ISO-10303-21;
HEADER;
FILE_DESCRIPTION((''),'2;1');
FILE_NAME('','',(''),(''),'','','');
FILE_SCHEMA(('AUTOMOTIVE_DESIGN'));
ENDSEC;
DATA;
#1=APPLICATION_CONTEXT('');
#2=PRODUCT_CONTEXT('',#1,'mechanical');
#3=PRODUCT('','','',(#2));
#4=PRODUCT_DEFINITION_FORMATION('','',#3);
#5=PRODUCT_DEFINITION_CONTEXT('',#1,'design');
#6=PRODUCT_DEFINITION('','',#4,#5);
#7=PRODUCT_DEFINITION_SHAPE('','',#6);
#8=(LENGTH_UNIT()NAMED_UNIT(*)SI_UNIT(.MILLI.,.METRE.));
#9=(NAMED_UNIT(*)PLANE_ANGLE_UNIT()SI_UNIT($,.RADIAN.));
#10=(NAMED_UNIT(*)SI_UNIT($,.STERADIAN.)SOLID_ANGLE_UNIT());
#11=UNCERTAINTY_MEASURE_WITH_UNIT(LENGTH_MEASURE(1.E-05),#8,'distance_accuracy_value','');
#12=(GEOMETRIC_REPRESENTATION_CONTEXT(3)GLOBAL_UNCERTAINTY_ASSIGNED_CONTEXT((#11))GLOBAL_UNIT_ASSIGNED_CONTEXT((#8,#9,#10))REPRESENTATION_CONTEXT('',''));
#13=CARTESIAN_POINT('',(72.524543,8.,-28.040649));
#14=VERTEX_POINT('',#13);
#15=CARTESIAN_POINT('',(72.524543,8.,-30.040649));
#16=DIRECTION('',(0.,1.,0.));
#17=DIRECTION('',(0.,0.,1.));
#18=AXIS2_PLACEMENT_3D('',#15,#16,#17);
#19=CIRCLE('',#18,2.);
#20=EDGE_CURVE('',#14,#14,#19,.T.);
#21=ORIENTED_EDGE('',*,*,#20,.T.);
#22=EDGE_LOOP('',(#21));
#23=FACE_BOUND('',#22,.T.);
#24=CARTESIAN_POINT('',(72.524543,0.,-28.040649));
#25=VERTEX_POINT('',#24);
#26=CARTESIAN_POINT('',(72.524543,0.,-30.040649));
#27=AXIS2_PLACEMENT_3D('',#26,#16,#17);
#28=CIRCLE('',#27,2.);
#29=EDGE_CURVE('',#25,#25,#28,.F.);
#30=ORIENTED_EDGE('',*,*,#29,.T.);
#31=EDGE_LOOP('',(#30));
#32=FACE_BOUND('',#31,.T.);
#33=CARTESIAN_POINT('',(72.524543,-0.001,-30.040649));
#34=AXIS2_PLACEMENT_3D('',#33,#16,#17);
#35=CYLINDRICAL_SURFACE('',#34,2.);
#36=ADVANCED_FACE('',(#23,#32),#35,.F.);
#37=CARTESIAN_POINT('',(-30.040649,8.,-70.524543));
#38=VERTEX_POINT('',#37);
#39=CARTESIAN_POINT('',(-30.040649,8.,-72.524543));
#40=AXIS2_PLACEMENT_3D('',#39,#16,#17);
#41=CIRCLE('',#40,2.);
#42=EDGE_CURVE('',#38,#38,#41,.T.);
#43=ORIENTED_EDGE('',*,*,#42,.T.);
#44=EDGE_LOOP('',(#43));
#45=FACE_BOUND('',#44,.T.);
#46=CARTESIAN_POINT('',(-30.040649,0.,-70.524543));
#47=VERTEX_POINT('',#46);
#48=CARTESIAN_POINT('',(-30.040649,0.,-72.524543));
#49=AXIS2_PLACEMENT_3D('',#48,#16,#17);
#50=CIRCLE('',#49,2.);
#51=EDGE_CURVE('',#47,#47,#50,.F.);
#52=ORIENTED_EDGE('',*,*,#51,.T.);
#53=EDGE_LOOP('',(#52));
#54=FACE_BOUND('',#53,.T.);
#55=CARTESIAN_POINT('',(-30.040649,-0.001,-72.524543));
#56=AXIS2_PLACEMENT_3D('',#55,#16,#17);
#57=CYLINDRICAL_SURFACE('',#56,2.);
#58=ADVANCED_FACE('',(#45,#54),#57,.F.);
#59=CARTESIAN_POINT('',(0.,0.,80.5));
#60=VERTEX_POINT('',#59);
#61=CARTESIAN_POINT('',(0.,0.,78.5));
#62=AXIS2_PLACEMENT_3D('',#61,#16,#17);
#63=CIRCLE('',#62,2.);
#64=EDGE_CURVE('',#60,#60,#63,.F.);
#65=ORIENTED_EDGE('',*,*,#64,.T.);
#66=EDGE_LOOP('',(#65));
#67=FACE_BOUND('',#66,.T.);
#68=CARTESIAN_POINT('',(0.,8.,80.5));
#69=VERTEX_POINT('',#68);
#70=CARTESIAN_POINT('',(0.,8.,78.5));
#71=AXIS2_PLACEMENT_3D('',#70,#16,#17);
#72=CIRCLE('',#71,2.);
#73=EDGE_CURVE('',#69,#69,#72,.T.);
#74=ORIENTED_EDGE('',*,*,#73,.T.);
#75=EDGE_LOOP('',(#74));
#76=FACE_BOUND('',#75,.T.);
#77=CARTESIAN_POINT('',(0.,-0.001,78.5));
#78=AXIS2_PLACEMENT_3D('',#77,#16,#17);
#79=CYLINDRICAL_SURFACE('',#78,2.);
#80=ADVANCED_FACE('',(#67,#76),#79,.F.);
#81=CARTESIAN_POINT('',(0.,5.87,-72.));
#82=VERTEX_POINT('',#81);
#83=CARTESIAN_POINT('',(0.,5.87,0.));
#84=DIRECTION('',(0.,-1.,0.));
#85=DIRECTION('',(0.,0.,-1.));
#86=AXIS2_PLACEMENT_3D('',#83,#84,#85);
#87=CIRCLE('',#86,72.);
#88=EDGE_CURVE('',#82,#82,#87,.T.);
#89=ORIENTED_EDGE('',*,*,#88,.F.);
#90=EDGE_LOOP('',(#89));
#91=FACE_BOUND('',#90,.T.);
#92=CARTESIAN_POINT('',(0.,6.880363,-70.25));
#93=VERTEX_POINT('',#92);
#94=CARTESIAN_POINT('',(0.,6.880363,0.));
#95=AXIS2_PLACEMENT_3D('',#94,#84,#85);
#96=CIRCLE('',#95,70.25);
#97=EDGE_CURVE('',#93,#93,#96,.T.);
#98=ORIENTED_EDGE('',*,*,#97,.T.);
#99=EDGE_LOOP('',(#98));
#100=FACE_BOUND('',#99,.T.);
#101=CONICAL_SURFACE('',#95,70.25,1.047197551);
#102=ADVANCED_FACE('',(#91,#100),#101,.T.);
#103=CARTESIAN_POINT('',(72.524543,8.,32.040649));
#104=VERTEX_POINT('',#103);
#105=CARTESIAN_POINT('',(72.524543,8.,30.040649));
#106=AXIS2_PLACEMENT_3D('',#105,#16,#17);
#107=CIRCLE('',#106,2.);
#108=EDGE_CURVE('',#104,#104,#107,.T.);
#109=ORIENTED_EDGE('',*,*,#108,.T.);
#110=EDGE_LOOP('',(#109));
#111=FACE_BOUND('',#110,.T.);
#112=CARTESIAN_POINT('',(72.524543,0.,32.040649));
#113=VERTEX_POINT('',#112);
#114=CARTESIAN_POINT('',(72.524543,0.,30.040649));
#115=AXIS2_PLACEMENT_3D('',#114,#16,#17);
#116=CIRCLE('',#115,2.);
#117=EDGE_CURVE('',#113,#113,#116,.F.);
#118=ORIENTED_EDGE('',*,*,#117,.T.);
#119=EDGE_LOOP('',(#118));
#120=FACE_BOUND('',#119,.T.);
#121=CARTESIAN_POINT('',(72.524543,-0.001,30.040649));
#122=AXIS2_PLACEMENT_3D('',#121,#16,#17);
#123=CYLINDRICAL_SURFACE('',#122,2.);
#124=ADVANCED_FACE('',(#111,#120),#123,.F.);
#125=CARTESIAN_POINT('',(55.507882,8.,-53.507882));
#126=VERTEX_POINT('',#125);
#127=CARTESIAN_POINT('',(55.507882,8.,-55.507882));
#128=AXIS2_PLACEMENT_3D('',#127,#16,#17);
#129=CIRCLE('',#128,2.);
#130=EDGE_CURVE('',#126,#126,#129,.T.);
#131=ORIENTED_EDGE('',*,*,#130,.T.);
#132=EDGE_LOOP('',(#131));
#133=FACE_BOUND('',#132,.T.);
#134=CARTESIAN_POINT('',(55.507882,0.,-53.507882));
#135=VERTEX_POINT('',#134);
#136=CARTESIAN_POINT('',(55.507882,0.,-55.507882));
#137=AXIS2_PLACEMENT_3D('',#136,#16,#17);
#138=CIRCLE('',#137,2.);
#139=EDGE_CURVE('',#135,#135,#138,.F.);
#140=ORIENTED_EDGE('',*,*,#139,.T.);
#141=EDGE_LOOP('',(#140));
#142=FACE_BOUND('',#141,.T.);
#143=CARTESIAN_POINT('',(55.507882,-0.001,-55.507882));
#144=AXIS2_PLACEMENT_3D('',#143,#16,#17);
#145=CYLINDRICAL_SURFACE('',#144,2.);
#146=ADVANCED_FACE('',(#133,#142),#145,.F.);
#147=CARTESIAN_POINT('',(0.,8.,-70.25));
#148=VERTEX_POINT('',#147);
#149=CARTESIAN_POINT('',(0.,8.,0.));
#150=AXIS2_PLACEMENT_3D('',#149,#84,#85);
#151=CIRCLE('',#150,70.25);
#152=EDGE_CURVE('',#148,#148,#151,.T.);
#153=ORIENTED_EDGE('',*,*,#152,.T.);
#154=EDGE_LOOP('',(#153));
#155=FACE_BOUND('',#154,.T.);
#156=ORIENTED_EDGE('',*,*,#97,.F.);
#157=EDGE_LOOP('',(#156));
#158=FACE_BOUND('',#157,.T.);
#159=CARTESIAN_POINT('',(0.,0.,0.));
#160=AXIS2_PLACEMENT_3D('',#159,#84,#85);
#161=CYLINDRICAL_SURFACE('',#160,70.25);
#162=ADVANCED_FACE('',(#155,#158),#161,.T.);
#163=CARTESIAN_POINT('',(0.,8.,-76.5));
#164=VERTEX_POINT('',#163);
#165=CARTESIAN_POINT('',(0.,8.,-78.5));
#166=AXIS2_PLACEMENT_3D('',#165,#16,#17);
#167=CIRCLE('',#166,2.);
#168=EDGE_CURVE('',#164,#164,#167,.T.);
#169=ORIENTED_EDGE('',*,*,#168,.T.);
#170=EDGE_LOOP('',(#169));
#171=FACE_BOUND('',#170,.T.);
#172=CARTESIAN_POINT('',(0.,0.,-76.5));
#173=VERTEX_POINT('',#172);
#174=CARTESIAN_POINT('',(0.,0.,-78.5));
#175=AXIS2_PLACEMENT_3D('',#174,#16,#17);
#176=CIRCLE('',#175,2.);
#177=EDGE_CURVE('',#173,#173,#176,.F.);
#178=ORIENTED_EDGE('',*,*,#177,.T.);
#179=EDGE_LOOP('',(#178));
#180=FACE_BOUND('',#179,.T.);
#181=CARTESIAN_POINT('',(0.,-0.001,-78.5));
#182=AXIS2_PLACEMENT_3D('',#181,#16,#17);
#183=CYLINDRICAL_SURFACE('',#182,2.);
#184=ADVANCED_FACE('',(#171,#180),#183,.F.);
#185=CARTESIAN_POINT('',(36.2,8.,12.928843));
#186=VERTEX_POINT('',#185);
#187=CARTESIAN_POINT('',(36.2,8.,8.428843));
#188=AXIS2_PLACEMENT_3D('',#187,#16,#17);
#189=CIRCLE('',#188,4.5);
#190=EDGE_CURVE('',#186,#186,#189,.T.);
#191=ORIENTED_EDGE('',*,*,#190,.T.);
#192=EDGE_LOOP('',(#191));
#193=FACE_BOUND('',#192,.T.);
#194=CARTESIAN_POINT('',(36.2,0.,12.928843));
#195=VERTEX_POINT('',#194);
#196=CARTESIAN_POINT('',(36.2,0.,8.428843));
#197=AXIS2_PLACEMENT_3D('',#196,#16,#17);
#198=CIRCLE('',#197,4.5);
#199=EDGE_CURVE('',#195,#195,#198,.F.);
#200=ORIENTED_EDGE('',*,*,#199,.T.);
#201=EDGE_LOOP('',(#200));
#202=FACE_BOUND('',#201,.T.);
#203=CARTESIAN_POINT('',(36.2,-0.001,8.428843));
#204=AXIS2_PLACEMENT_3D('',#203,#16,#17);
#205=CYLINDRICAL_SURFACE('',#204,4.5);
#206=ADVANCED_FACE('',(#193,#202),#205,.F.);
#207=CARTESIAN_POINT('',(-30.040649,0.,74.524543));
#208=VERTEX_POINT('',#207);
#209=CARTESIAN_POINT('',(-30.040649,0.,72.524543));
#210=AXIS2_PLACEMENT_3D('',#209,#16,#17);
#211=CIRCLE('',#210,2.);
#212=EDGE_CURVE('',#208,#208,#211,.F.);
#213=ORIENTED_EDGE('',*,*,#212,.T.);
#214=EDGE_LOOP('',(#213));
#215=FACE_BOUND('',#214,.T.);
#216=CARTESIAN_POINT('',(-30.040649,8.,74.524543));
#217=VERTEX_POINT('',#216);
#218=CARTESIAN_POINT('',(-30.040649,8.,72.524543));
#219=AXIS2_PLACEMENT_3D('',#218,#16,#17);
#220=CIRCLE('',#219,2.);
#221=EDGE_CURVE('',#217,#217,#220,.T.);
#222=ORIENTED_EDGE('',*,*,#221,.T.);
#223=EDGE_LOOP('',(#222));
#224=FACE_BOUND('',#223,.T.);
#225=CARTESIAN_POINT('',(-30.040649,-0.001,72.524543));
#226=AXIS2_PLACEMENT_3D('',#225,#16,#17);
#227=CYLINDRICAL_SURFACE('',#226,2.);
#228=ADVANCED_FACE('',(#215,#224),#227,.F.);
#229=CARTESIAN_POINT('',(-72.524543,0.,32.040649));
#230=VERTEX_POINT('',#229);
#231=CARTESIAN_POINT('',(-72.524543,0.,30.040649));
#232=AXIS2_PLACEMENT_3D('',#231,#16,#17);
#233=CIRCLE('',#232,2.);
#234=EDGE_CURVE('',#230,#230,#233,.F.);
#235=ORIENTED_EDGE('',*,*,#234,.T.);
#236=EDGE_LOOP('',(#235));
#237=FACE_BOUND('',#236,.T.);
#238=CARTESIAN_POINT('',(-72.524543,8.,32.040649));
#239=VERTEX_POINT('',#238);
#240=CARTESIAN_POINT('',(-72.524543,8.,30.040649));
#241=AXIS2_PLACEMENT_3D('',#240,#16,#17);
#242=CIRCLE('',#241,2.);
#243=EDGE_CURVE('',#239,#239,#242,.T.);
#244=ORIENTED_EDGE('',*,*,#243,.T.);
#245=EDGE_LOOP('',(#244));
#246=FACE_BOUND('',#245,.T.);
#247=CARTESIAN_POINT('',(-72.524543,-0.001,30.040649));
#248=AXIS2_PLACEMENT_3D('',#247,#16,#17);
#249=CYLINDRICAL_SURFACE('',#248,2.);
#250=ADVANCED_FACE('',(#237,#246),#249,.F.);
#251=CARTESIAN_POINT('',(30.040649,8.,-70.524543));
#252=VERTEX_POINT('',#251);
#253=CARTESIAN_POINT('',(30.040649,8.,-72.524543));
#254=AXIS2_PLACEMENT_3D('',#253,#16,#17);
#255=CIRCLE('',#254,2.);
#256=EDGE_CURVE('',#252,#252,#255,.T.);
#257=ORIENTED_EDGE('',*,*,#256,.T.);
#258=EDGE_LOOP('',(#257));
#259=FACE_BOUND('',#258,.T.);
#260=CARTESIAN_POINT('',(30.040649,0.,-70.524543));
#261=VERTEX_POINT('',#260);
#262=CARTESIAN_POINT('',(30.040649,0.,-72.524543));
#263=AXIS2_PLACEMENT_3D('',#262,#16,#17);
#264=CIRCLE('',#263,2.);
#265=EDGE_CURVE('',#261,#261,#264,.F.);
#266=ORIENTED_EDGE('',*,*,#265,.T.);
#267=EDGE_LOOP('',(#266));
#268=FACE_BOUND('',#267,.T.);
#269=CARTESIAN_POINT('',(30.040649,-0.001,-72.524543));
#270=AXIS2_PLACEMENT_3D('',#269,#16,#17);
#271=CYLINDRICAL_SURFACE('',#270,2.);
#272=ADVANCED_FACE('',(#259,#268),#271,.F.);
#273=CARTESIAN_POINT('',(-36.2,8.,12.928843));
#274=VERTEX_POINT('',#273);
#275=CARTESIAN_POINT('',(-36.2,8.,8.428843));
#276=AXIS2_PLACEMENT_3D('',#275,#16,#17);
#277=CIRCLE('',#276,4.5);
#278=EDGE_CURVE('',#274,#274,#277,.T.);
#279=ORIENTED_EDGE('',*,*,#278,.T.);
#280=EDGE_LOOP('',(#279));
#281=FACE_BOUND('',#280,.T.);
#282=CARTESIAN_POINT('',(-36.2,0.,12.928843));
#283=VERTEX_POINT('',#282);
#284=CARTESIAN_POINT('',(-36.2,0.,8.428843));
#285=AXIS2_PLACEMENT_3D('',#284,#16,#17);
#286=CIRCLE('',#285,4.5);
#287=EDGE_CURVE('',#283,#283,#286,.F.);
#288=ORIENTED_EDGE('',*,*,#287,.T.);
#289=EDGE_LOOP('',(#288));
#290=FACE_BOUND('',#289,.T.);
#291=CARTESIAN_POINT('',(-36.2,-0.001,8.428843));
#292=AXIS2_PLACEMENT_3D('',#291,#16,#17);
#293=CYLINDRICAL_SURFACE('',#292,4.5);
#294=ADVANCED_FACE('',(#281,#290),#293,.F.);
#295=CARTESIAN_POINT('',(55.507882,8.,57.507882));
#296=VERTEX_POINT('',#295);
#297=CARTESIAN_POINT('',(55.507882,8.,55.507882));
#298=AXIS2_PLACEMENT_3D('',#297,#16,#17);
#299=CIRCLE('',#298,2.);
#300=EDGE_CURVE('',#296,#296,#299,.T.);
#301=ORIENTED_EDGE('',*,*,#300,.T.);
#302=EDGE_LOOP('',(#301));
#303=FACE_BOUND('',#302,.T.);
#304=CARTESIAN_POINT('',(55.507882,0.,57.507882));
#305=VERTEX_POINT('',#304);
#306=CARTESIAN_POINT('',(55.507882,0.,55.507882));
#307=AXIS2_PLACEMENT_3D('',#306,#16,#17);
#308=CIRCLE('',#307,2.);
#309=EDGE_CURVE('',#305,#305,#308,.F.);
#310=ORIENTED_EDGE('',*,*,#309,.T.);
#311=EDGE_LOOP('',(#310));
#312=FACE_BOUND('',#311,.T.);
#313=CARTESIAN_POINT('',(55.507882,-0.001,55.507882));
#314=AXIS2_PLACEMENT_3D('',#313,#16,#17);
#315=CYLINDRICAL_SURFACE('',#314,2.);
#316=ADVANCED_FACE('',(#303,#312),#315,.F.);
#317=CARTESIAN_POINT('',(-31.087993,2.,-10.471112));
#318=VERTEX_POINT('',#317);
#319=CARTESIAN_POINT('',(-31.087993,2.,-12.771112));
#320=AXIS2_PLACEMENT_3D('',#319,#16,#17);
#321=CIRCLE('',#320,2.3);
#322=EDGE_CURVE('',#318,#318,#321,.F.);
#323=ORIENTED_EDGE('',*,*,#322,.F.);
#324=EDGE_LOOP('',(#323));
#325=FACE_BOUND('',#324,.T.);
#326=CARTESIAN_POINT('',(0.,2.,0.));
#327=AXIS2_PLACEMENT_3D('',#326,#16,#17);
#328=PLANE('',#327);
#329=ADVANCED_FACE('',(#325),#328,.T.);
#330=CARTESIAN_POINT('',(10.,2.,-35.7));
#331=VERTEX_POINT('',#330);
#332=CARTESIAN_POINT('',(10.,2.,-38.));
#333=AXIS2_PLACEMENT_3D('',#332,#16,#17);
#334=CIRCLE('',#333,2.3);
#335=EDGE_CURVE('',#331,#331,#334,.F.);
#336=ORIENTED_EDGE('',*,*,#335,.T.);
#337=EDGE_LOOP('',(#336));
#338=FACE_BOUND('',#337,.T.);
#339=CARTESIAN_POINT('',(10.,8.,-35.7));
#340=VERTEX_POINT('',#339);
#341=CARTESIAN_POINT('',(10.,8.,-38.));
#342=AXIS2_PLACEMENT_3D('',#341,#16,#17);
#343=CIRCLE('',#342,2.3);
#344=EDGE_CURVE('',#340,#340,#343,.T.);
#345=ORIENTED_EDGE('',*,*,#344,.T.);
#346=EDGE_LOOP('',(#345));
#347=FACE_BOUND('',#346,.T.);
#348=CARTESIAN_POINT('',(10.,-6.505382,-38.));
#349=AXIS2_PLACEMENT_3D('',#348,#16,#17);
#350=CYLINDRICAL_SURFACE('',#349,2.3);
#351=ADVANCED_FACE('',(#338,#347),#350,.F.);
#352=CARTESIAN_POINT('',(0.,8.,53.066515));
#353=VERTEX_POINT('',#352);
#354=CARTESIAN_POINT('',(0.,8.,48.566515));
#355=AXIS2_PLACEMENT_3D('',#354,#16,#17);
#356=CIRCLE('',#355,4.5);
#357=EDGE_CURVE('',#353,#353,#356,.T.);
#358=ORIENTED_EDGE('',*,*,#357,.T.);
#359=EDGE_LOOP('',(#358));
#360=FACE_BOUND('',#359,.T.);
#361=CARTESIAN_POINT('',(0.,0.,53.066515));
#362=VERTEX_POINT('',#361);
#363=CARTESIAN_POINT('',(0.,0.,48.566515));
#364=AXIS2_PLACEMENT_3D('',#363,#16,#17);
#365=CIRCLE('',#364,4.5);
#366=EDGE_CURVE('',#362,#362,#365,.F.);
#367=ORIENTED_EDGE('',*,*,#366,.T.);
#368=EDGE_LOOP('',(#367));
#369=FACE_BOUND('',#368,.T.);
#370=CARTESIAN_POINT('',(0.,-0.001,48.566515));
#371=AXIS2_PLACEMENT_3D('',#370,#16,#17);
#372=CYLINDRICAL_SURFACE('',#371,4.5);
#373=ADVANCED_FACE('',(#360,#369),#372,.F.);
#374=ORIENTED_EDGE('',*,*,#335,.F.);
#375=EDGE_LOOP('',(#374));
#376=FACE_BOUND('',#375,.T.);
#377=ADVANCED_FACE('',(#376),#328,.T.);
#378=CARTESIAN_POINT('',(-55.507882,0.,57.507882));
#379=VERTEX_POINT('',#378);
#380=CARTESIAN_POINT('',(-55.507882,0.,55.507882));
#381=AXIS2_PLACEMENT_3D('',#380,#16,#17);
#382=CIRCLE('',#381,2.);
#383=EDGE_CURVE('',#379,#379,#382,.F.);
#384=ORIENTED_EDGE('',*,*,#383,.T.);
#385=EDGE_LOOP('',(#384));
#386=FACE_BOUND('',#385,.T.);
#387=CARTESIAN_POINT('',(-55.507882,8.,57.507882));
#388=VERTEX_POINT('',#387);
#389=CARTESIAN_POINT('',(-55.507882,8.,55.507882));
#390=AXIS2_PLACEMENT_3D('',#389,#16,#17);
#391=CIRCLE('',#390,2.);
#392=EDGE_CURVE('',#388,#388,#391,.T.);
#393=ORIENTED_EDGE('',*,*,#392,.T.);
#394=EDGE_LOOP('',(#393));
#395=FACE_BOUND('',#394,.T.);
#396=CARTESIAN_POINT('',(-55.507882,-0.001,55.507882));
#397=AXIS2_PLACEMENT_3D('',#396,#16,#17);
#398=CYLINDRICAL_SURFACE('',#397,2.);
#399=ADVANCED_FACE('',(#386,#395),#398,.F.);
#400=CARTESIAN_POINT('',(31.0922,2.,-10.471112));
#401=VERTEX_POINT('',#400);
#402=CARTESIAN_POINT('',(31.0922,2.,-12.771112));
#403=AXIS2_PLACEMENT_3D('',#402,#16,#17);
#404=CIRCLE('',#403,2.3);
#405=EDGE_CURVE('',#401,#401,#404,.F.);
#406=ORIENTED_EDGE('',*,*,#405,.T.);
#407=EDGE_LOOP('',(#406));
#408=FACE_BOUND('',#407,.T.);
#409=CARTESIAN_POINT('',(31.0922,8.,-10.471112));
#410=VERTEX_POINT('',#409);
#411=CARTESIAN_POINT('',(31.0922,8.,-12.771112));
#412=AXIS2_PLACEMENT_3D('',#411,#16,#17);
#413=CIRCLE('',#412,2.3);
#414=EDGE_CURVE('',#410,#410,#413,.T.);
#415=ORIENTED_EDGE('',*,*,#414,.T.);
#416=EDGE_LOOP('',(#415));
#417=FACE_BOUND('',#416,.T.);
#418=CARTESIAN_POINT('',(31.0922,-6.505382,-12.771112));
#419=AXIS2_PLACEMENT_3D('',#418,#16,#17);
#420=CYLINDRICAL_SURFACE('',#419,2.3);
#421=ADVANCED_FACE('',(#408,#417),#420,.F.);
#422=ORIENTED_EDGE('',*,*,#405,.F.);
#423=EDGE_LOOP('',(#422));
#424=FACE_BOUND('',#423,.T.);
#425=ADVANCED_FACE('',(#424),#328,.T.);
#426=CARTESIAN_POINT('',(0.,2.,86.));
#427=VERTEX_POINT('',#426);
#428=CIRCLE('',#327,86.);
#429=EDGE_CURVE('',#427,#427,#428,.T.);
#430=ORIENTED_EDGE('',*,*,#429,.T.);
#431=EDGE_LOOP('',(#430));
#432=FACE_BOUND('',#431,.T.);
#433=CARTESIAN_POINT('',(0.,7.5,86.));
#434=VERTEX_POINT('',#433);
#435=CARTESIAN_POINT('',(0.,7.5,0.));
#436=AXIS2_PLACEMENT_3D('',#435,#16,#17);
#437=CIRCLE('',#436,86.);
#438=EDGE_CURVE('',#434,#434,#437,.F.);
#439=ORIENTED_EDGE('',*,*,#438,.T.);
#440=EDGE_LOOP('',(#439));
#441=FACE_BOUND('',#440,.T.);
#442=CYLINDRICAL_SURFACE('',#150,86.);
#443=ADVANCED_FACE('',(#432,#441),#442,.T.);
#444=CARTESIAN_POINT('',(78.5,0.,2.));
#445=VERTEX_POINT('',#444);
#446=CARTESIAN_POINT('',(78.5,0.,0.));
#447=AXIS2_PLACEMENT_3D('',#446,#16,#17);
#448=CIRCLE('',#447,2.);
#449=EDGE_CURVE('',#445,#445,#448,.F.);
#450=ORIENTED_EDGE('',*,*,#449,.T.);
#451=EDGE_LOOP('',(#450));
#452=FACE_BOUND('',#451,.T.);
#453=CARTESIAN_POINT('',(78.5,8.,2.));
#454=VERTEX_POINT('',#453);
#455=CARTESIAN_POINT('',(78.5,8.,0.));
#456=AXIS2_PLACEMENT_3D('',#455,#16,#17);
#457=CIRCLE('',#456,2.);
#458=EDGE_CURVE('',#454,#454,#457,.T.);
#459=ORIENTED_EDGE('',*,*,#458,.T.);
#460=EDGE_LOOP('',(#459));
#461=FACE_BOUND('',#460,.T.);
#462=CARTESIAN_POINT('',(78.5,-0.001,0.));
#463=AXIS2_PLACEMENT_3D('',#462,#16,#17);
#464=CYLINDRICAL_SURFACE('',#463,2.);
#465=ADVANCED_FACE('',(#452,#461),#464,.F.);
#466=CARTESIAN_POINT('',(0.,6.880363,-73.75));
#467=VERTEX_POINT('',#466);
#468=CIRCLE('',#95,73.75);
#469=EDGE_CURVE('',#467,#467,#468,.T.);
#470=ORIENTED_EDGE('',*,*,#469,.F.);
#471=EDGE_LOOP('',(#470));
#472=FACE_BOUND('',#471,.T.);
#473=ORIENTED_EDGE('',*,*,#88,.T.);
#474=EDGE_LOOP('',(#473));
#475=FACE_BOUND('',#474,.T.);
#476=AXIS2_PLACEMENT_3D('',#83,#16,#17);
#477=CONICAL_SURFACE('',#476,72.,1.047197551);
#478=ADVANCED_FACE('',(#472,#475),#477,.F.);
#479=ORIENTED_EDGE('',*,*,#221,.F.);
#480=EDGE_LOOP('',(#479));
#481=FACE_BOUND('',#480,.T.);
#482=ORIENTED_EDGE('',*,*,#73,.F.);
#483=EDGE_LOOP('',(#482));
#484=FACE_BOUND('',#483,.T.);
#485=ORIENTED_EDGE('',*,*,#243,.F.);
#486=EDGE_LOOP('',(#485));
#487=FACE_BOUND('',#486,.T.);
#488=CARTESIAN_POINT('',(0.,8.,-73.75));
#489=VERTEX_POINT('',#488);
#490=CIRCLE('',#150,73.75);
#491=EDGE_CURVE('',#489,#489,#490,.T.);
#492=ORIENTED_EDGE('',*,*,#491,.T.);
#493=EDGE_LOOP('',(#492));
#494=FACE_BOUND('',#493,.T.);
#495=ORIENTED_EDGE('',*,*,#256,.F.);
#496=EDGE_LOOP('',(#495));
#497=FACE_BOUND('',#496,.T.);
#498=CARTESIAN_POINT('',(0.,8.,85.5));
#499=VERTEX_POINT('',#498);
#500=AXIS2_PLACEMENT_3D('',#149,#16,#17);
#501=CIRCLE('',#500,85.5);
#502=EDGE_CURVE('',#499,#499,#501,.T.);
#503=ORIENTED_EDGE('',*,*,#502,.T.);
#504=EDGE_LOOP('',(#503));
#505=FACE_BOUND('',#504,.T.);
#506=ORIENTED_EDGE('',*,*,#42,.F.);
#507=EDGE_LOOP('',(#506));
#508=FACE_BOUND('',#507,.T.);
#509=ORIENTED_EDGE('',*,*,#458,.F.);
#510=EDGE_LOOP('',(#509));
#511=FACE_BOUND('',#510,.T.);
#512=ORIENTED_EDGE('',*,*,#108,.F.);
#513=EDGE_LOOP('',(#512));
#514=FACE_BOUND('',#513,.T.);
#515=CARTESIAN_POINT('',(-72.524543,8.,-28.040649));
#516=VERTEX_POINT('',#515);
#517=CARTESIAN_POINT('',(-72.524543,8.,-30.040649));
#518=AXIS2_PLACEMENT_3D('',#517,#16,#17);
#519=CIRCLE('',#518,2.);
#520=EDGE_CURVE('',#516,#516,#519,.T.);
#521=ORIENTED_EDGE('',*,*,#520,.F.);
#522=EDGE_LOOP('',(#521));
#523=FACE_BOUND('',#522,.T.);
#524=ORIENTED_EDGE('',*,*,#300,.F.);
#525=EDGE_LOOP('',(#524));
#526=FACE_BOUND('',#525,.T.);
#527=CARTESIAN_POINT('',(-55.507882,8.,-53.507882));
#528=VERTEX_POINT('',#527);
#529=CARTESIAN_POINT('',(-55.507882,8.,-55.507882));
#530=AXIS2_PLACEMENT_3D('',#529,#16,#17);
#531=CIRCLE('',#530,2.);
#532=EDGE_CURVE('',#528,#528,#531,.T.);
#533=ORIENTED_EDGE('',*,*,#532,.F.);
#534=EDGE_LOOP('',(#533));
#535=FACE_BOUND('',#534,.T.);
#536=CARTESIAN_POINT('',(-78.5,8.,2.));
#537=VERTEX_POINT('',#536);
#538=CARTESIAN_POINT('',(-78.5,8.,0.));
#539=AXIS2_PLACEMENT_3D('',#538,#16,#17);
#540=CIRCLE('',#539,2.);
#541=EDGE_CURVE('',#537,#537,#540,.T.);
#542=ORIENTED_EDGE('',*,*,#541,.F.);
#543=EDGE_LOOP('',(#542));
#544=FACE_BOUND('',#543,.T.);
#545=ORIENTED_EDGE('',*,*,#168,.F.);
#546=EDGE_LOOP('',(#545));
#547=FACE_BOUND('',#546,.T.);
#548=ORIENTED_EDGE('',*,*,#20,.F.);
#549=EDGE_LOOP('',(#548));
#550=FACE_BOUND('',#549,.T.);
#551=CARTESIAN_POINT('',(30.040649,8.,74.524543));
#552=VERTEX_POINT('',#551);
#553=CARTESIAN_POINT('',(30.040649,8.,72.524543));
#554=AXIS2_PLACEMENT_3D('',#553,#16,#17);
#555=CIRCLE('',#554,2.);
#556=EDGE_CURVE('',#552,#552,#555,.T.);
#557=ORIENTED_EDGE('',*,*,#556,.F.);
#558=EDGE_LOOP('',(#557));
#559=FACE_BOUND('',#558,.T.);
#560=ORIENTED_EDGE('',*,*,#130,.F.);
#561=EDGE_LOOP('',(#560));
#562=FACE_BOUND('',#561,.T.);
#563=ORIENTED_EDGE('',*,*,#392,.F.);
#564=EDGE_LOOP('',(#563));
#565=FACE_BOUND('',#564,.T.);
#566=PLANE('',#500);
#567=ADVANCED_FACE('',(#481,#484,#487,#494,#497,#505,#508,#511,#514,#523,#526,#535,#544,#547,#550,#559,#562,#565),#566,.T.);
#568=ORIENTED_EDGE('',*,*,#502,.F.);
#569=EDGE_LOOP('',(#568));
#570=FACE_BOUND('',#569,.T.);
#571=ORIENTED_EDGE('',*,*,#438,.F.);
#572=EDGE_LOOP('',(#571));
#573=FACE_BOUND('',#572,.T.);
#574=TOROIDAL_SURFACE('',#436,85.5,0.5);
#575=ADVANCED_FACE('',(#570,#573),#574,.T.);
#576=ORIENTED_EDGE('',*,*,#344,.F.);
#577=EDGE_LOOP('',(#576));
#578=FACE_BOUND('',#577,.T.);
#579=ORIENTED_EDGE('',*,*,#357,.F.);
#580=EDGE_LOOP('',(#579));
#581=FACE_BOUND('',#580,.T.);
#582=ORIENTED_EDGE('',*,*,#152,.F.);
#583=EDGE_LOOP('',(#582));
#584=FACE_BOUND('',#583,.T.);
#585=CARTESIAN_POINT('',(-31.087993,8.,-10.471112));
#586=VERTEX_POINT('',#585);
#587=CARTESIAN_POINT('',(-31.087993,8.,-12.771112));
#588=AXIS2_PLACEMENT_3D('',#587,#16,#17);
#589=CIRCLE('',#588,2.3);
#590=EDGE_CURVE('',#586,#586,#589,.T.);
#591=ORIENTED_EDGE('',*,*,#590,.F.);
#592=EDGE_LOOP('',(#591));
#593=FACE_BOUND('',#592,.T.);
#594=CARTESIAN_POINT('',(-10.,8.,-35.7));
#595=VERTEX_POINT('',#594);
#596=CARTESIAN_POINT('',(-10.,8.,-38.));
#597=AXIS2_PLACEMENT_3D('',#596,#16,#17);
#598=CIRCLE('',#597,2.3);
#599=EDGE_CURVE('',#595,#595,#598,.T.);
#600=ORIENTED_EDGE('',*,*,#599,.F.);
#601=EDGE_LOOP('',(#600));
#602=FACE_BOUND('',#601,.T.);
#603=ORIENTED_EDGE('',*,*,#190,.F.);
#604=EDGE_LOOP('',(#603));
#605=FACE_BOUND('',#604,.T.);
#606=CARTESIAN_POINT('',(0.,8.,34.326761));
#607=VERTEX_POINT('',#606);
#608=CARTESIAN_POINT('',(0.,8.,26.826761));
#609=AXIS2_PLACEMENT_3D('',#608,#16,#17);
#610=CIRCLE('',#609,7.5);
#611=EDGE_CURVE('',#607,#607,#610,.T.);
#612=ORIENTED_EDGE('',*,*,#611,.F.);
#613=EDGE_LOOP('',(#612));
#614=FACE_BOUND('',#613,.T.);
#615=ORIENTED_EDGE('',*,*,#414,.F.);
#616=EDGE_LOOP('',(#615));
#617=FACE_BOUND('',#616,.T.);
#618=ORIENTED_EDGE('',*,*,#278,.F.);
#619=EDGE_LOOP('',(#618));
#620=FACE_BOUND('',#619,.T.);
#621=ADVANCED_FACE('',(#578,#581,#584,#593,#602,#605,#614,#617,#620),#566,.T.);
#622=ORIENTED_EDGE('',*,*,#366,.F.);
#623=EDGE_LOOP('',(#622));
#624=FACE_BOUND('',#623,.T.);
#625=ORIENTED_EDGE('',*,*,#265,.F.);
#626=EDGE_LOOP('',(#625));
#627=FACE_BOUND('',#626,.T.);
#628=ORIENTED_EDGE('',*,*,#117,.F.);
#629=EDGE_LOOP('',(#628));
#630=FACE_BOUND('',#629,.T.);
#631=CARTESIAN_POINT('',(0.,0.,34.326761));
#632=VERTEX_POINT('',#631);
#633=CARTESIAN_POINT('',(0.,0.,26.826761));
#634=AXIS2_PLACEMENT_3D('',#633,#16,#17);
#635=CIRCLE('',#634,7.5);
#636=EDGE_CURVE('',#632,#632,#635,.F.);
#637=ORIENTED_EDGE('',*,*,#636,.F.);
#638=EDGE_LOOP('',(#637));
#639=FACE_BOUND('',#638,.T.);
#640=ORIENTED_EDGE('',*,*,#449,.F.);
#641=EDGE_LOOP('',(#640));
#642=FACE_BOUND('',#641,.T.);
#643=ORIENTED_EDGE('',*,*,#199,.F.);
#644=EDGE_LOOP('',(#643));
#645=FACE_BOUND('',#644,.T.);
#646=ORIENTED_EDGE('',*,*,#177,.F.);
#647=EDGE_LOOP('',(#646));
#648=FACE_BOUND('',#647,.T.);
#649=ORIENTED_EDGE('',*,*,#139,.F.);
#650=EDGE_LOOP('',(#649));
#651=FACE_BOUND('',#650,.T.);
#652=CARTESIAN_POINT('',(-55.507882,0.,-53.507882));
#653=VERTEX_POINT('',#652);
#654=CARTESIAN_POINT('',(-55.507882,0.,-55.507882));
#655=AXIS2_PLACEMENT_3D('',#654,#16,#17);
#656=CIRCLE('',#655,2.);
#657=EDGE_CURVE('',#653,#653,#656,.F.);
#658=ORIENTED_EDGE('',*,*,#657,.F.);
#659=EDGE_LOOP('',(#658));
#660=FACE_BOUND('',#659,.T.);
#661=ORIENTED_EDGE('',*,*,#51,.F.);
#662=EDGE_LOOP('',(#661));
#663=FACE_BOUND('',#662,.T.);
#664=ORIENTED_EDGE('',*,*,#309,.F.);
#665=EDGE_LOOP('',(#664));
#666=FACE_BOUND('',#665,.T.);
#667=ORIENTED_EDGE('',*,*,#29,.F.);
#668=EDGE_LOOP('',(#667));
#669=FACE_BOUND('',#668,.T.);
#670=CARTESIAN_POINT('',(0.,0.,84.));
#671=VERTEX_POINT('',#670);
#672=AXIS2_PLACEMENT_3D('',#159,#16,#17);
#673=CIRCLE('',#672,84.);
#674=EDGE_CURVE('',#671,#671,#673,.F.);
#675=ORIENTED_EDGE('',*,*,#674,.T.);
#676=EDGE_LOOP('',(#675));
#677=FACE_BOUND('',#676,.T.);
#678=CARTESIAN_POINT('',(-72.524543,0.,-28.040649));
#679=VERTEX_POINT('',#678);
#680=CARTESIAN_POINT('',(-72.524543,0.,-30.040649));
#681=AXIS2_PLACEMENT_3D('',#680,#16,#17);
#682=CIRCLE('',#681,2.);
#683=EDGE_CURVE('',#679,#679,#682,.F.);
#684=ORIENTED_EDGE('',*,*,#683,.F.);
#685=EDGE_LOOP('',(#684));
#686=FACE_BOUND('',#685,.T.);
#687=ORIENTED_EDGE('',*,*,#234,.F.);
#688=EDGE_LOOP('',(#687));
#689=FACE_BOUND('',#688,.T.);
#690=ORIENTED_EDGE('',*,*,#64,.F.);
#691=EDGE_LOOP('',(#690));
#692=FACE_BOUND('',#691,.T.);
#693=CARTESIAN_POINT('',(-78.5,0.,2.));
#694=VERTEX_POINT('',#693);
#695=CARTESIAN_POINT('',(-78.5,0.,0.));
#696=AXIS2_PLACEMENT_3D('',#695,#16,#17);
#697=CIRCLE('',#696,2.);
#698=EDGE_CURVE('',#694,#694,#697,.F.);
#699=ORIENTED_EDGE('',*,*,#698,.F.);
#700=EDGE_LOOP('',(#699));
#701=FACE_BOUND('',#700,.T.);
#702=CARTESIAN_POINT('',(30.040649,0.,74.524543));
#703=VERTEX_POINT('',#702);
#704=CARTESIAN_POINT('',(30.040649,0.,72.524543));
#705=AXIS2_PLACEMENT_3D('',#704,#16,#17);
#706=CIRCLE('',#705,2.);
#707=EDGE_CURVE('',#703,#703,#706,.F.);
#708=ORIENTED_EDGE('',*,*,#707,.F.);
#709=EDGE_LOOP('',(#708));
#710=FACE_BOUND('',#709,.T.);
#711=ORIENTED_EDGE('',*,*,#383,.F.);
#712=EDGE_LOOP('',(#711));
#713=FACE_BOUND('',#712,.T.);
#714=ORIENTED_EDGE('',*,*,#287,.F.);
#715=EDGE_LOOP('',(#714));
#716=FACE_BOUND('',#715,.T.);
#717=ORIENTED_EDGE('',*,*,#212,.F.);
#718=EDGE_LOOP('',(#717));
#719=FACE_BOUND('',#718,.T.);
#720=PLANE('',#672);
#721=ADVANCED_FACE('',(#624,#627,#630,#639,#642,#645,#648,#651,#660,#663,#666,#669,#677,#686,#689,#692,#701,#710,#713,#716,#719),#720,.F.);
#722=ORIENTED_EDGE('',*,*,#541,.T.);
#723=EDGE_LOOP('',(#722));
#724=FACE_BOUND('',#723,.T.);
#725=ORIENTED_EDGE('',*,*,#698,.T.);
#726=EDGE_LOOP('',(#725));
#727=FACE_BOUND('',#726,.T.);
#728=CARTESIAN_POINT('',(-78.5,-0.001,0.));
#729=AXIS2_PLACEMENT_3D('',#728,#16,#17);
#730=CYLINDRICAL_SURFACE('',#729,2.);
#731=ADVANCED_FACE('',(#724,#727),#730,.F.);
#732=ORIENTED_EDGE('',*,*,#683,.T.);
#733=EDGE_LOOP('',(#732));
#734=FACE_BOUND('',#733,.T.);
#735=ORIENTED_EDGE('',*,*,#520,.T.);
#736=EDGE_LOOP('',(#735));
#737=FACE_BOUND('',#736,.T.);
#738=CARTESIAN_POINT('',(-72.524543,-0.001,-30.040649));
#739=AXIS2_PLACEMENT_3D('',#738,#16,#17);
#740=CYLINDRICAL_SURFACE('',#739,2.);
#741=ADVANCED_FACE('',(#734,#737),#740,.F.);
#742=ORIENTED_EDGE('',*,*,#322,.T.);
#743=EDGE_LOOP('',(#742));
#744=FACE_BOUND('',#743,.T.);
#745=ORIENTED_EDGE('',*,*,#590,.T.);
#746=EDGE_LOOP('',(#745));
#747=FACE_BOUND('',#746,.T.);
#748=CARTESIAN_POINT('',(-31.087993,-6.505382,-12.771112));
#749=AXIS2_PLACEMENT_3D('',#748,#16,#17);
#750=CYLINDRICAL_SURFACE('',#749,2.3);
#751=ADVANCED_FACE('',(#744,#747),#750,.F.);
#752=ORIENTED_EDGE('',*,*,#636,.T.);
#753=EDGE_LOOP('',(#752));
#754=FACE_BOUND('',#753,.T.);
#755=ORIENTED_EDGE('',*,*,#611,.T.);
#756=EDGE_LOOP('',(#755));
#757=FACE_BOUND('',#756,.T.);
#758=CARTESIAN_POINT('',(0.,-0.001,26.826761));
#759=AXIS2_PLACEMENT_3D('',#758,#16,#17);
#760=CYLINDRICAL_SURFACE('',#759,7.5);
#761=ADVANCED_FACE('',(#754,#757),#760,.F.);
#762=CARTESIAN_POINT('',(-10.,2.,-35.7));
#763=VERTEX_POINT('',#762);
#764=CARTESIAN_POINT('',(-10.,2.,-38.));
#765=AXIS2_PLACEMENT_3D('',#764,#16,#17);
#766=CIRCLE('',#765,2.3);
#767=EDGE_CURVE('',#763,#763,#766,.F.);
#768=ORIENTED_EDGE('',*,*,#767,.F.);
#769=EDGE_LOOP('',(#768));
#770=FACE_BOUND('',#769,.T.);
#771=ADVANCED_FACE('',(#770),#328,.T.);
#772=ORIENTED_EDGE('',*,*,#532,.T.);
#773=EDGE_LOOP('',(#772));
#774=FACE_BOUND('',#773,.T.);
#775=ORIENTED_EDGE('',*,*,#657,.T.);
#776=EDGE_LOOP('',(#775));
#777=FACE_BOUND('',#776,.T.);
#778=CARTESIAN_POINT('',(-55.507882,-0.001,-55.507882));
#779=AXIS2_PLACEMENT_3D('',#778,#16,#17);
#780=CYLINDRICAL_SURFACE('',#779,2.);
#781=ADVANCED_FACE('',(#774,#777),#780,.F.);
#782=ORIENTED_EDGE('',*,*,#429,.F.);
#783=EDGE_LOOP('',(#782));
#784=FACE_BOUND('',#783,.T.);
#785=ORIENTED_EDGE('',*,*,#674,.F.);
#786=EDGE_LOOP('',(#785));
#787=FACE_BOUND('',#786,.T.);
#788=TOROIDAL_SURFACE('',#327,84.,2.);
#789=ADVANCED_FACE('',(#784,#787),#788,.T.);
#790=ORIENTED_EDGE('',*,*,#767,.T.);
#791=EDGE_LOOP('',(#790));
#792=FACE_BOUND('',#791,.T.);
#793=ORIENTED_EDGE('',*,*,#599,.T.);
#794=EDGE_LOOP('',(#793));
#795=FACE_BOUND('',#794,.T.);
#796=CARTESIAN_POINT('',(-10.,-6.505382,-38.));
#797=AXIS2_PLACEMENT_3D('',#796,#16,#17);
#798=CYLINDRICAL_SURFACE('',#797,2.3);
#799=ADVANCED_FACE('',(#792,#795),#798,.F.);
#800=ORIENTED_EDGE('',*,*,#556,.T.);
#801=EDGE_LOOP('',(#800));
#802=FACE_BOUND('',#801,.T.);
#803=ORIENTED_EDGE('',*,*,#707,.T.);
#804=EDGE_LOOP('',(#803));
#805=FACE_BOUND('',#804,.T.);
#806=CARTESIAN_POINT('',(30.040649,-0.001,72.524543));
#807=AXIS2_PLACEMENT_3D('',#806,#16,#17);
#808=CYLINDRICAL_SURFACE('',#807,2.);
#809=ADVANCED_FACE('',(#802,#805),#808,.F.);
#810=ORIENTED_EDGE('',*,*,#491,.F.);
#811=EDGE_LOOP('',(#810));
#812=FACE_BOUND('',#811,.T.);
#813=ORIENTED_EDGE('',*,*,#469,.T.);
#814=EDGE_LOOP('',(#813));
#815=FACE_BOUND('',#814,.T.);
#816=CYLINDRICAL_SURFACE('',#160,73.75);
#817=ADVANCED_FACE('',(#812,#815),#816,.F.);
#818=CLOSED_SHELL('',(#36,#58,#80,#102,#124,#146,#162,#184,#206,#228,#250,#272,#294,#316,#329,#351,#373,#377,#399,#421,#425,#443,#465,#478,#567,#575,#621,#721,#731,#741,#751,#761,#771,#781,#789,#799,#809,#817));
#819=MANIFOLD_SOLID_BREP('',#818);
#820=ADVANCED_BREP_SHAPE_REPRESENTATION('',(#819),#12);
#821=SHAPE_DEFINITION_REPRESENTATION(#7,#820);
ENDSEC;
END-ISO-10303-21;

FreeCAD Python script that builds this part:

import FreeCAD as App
import Part
import Sketcher
from FreeCAD import Vector
Q = App.Units.Quantity


def edges_at(feature, points):
    """Names of the edges that pass closest to the given points."""
    edges = feature.Shape.Edges
    near = lambda p: min(range(len(edges)), key=lambda i: edges[i].distToShape(Part.Vertex(*p))[0])
    return sorted({f"Edge{near(p) + 1}" for p in points})

doc = App.newDocument("Part")
body = doc.addObject("PartDesign::Body", "Body")

sketch1 = body.newObject("Sketcher::SketchObject", "Sketch")
sketch1.AttachmentSupport = (doc.getObject("XZ_Plane"), [""])
sketch1.MapMode = "FlatFace"
sketch1.addGeometry(Part.Circle(Vector(0, 0, 0), Vector(0, 0, 1), 86), False)
sketch1.addConstraint(Sketcher.Constraint("Coincident", 0, 3, -1, 1))
sketch1.addConstraint(Sketcher.Constraint("Diameter", 0, 172.0))
pad1 = body.newObject("PartDesign::Pad", "Pad")
pad1.Profile = sketch1
pad1.Length = 8
pad1.Reversed = True

sketch2 = body.newObject("Sketcher::SketchObject", "Sketch001")
sketch2.AttachmentSupport = (doc.getObject("XZ_Plane"), [""])
sketch2.MapMode = "FlatFace"
sketch2.AttachmentOffset = App.Placement(Vector(0, 0, -8), App.Rotation())
sketch2.addGeometry(Part.Circle(Vector(0, -78.5, 0), Vector(0, 0, 1), 2), False)
sketch2.addConstraint(Sketcher.Constraint("PointOnObject", 0, 3, -2))
sketch2.addConstraint(Sketcher.Constraint("Diameter", 0, 4.0))
sketch2.addConstraint(Sketcher.Constraint("DistanceY", 0, 3, -1, 1, 78.5))
pocket1 = body.newObject("PartDesign::Pocket", "Pocket")
pocket1.Profile = sketch2
pocket1.Type = "UpToFirst"
pocket1.Reversed = True

sketch3 = body.newObject("Sketcher::SketchObject", "Sketch002")
sketch3.AttachmentSupport = (doc.getObject("XZ_Plane"), [""])
sketch3.MapMode = "FlatFace"
sketch3.AttachmentOffset = App.Placement(Vector(0, 0, -8), App.Rotation())
sketch3.addGeometry(Part.Circle(Vector(30, -72.5, 0), Vector(0, 0, 1), 2), False)
sketch3.addConstraint(Sketcher.Constraint("Diameter", 0, 4.0))
sketch3.addConstraint(Sketcher.Constraint("DistanceX", -1, 1, 0, 3, 30.040649))
sketch3.addConstraint(Sketcher.Constraint("DistanceY", 0, 3, -1, 1, 72.524543))
pocket2 = body.newObject("PartDesign::Pocket", "Pocket001")
pocket2.Profile = sketch3
pocket2.Type = "UpToFirst"
pocket2.Reversed = True

sketch4 = body.newObject("Sketcher::SketchObject", "Sketch003")
sketch4.AttachmentSupport = (doc.getObject("XZ_Plane"), [""])
sketch4.MapMode = "FlatFace"
sketch4.AttachmentOffset = App.Placement(Vector(0, 0, -8), App.Rotation())
sketch4.addGeometry(Part.Circle(Vector(55.5, -55.5, 0), Vector(0, 0, 1), 2), False)
sketch4.addConstraint(Sketcher.Constraint("Diameter", 0, 4.0))
sketch4.addConstraint(Sketcher.Constraint("DistanceX", -1, 1, 0, 3, 55.507882))
sketch4.addConstraint(Sketcher.Constraint("DistanceY", 0, 3, -1, 1, 55.507882))
pocket3 = body.newObject("PartDesign::Pocket", "Pocket002")
pocket3.Profile = sketch4
pocket3.Type = "UpToFirst"
pocket3.Reversed = True

sketch5 = body.newObject("Sketcher::SketchObject", "Sketch004")
sketch5.AttachmentSupport = (doc.getObject("XZ_Plane"), [""])
sketch5.MapMode = "FlatFace"
sketch5.AttachmentOffset = App.Placement(Vector(0, 0, -8), App.Rotation())
sketch5.addGeometry(Part.Circle(Vector(72.5, -30, 0), Vector(0, 0, 1), 2), False)
sketch5.addConstraint(Sketcher.Constraint("Diameter", 0, 4.0))
sketch5.addConstraint(Sketcher.Constraint("DistanceY", 0, 3, -1, 1, 30.040649))
sketch5.addConstraint(Sketcher.Constraint("DistanceX", -1, 1, 0, 3, 72.524543))
pocket4 = body.newObject("PartDesign::Pocket", "Pocket003")
pocket4.Profile = sketch5
pocket4.Type = "UpToFirst"
pocket4.Reversed = True

sketch6 = body.newObject("Sketcher::SketchObject", "Sketch005")
sketch6.AttachmentSupport = (doc.getObject("XZ_Plane"), [""])
sketch6.MapMode = "FlatFace"
sketch6.AttachmentOffset = App.Placement(Vector(0, 0, -8), App.Rotation())
sketch6.addGeometry(Part.Circle(Vector(78.5, 0, 0), Vector(0, 0, 1), 2), False)
sketch6.addConstraint(Sketcher.Constraint("PointOnObject", 0, 3, -1))
sketch6.addConstraint(Sketcher.Constraint("Diameter", 0, 4.0))
sketch6.addConstraint(Sketcher.Constraint("DistanceX", -1, 1, 0, 3, 78.5))
pocket5 = body.newObject("PartDesign::Pocket", "Pocket004")
pocket5.Profile = sketch6
pocket5.Type = "UpToFirst"
pocket5.Reversed = True

sketch7 = body.newObject("Sketcher::SketchObject", "Sketch006")
sketch7.AttachmentSupport = (doc.getObject("XZ_Plane"), [""])
sketch7.MapMode = "FlatFace"
sketch7.AttachmentOffset = App.Placement(Vector(0, 0, -8), App.Rotation())
sketch7.addGeometry(Part.Circle(Vector(72.5, 30, 0), Vector(0, 0, 1), 2), False)
sketch7.addConstraint(Sketcher.Constraint("Diameter", 0, 4.0))
sketch7.addConstraint(Sketcher.Constraint("DistanceY", -1, 1, 0, 3, 30.040649))
sketch7.addConstraint(Sketcher.Constraint("DistanceX", -1, 1, 0, 3, 72.524543))
pocket6 = body.newObject("PartDesign::Pocket", "Pocket005")
pocket6.Profile = sketch7
pocket6.Type = "UpToFirst"
pocket6.Reversed = True

sketch8 = body.newObject("Sketcher::SketchObject", "Sketch007")
sketch8.AttachmentSupport = (doc.getObject("XZ_Plane"), [""])
sketch8.MapMode = "FlatFace"
sketch8.AttachmentOffset = App.Placement(Vector(0, 0, -8), App.Rotation())
sketch8.addGeometry(Part.Circle(Vector(55.5, 55.5, 0), Vector(0, 0, 1), 2), False)
sketch8.addConstraint(Sketcher.Constraint("Diameter", 0, 4.0))
sketch8.addConstraint(Sketcher.Constraint("DistanceX", -1, 1, 0, 3, 55.507882))
sketch8.addConstraint(Sketcher.Constraint("DistanceY", -1, 1, 0, 3, 55.507882))
pocket7 = body.newObject("PartDesign::Pocket", "Pocket006")
pocket7.Profile = sketch8
pocket7.Type = "UpToFirst"
pocket7.Reversed = True

sketch9 = body.newObject("Sketcher::SketchObject", "Sketch008")
sketch9.AttachmentSupport = (doc.getObject("XZ_Plane"), [""])
sketch9.MapMode = "FlatFace"
sketch9.AttachmentOffset = App.Placement(Vector(0, 0, -8), App.Rotation())
sketch9.addGeometry(Part.Circle(Vector(30, 72.5, 0), Vector(0, 0, 1), 2), False)
sketch9.addConstraint(Sketcher.Constraint("Diameter", 0, 4.0))
sketch9.addConstraint(Sketcher.Constraint("DistanceX", -1, 1, 0, 3, 30.040649))
sketch9.addConstraint(Sketcher.Constraint("DistanceY", -1, 1, 0, 3, 72.524543))
pocket8 = body.newObject("PartDesign::Pocket", "Pocket007")
pocket8.Profile = sketch9
pocket8.Type = "UpToFirst"
pocket8.Reversed = True

sketch10 = body.newObject("Sketcher::SketchObject", "Sketch009")
sketch10.AttachmentSupport = (doc.getObject("XZ_Plane"), [""])
sketch10.MapMode = "FlatFace"
sketch10.AttachmentOffset = App.Placement(Vector(0, 0, -8), App.Rotation())
sketch10.addGeometry(Part.Circle(Vector(0, 78.5, 0), Vector(0, 0, 1), 2), False)
sketch10.addConstraint(Sketcher.Constraint("PointOnObject", 0, 3, -2))
sketch10.addConstraint(Sketcher.Constraint("Diameter", 0, 4.0))
sketch10.addConstraint(Sketcher.Constraint("DistanceY", -1, 1, 0, 3, 78.5))
pocket9 = body.newObject("PartDesign::Pocket", "Pocket008")
pocket9.Profile = sketch10
pocket9.Type = "UpToFirst"
pocket9.Reversed = True

sketch11 = body.newObject("Sketcher::SketchObject", "Sketch010")
sketch11.AttachmentSupport = (doc.getObject("XZ_Plane"), [""])
sketch11.MapMode = "FlatFace"
sketch11.AttachmentOffset = App.Placement(Vector(0, 0, -8), App.Rotation())
sketch11.addGeometry(Part.Circle(Vector(-30, 72.5, 0), Vector(0, 0, 1), 2), False)
sketch11.addConstraint(Sketcher.Constraint("Diameter", 0, 4.0))
sketch11.addConstraint(Sketcher.Constraint("DistanceX", 0, 3, -1, 1, 30.040649))
sketch11.addConstraint(Sketcher.Constraint("DistanceY", -1, 1, 0, 3, 72.524543))
pocket10 = body.newObject("PartDesign::Pocket", "Pocket009")
pocket10.Profile = sketch11
pocket10.Type = "UpToFirst"
pocket10.Reversed = True

sketch12 = body.newObject("Sketcher::SketchObject", "Sketch011")
sketch12.AttachmentSupport = (doc.getObject("XZ_Plane"), [""])
sketch12.MapMode = "FlatFace"
sketch12.AttachmentOffset = App.Placement(Vector(0, 0, -8), App.Rotation())
sketch12.addGeometry(Part.Circle(Vector(-55.5, 55.5, 0), Vector(0, 0, 1), 2), False)
sketch12.addConstraint(Sketcher.Constraint("Diameter", 0, 4.0))
sketch12.addConstraint(Sketcher.Constraint("DistanceX", 0, 3, -1, 1, 55.507882))
sketch12.addConstraint(Sketcher.Constraint("DistanceY", -1, 1, 0, 3, 55.507882))
pocket11 = body.newObject("PartDesign::Pocket", "Pocket010")
pocket11.Profile = sketch12
pocket11.Type = "UpToFirst"
pocket11.Reversed = True

sketch13 = body.newObject("Sketcher::SketchObject", "Sketch012")
sketch13.AttachmentSupport = (doc.getObject("XZ_Plane"), [""])
sketch13.MapMode = "FlatFace"
sketch13.AttachmentOffset = App.Placement(Vector(0, 0, -8), App.Rotation())
sketch13.addGeometry(Part.Circle(Vector(-72.5, 30, 0), Vector(0, 0, 1), 2), False)
sketch13.addConstraint(Sketcher.Constraint("Diameter", 0, 4.0))
sketch13.addConstraint(Sketcher.Constraint("DistanceY", -1, 1, 0, 3, 30.040649))
sketch13.addConstraint(Sketcher.Constraint("DistanceX", 0, 3, -1, 1, 72.524543))
pocket12 = body.newObject("PartDesign::Pocket", "Pocket011")
pocket12.Profile = sketch13
pocket12.Type = "UpToFirst"
pocket12.Reversed = True

sketch14 = body.newObject("Sketcher::SketchObject", "Sketch013")
sketch14.AttachmentSupport = (doc.getObject("XZ_Plane"), [""])
sketch14.MapMode = "FlatFace"
sketch14.AttachmentOffset = App.Placement(Vector(0, 0, -8), App.Rotation())
sketch14.addGeometry(Part.Circle(Vector(-78.5, 0, 0), Vector(0, 0, 1), 2), False)
sketch14.addConstraint(Sketcher.Constraint("PointOnObject", 0, 3, -1))
sketch14.addConstraint(Sketcher.Constraint("Diameter", 0, 4.0))
sketch14.addConstraint(Sketcher.Constraint("DistanceX", 0, 3, -1, 1, 78.5))
pocket13 = body.newObject("PartDesign::Pocket", "Pocket012")
pocket13.Profile = sketch14
pocket13.Type = "UpToFirst"
pocket13.Reversed = True

sketch15 = body.newObject("Sketcher::SketchObject", "Sketch014")
sketch15.AttachmentSupport = (doc.getObject("XZ_Plane"), [""])
sketch15.MapMode = "FlatFace"
sketch15.AttachmentOffset = App.Placement(Vector(0, 0, -8), App.Rotation())
sketch15.addGeometry(Part.Circle(Vector(-72.5, -30, 0), Vector(0, 0, 1), 2), False)
sketch15.addConstraint(Sketcher.Constraint("Diameter", 0, 4.0))
sketch15.addConstraint(Sketcher.Constraint("DistanceY", 0, 3, -1, 1, 30.040649))
sketch15.addConstraint(Sketcher.Constraint("DistanceX", 0, 3, -1, 1, 72.524543))
pocket14 = body.newObject("PartDesign::Pocket", "Pocket013")
pocket14.Profile = sketch15
pocket14.Type = "UpToFirst"
pocket14.Reversed = True

sketch16 = body.newObject("Sketcher::SketchObject", "Sketch015")
sketch16.AttachmentSupport = (doc.getObject("XZ_Plane"), [""])
sketch16.MapMode = "FlatFace"
sketch16.AttachmentOffset = App.Placement(Vector(0, 0, -8), App.Rotation())
sketch16.addGeometry(Part.Circle(Vector(-55.5, -55.5, 0), Vector(0, 0, 1), 2), False)
sketch16.addConstraint(Sketcher.Constraint("Diameter", 0, 4.0))
sketch16.addConstraint(Sketcher.Constraint("DistanceX", 0, 3, -1, 1, 55.507882))
sketch16.addConstraint(Sketcher.Constraint("DistanceY", 0, 3, -1, 1, 55.507882))
pocket15 = body.newObject("PartDesign::Pocket", "Pocket014")
pocket15.Profile = sketch16
pocket15.Type = "UpToFirst"
pocket15.Reversed = True

sketch17 = body.newObject("Sketcher::SketchObject", "Sketch016")
sketch17.AttachmentSupport = (doc.getObject("XZ_Plane"), [""])
sketch17.MapMode = "FlatFace"
sketch17.AttachmentOffset = App.Placement(Vector(0, 0, -8), App.Rotation())
sketch17.addGeometry(Part.Circle(Vector(-30, -72.5, 0), Vector(0, 0, 1), 2), False)
sketch17.addConstraint(Sketcher.Constraint("Diameter", 0, 4.0))
sketch17.addConstraint(Sketcher.Constraint("DistanceX", 0, 3, -1, 1, 30.040649))
sketch17.addConstraint(Sketcher.Constraint("DistanceY", 0, 3, -1, 1, 72.524543))
pocket16 = body.newObject("PartDesign::Pocket", "Pocket015")
pocket16.Profile = sketch17
pocket16.Type = "UpToFirst"
pocket16.Reversed = True

sketch18 = body.newObject("Sketcher::SketchObject", "Sketch017")
sketch18.AttachmentSupport = (doc.getObject("XZ_Plane"), [""])
sketch18.MapMode = "FlatFace"
sketch18.AttachmentOffset = App.Placement(Vector(0, 0, -8), App.Rotation())
sketch18.addGeometry(Part.Circle(Vector(-10, -38, 0), Vector(0, 0, 1), 2.3), False)
sketch18.addGeometry(Part.Circle(Vector(10, -38, 0), Vector(0, 0, 1), 2.3), False)
sketch18.addGeometry(Part.Circle(Vector(-31.1, -12.8, 0), Vector(0, 0, 1), 2.3), False)
sketch18.addGeometry(Part.Circle(Vector(31.1, -12.8, 0), Vector(0, 0, 1), 2.3), False)
sketch18.addConstraint(Sketcher.Constraint("Equal", 0, 1))
sketch18.addConstraint(Sketcher.Constraint("Equal", 1, 2))
sketch18.addConstraint(Sketcher.Constraint("Equal", 2, 3))
sketch18.addConstraint(Sketcher.Constraint("Symmetric", 0, 3, 1, 3, -2))
sketch18.addConstraint(Sketcher.Constraint("Horizontal", 2, 3, 3, 3))
sketch18.addConstraint(Sketcher.Constraint("Diameter", 0, 4.6))
sketch18.addConstraint(Sketcher.Constraint("DistanceX", 0, 3, -1, 1, 10.0))
sketch18.addConstraint(Sketcher.Constraint("DistanceY", 0, 3, -1, 1, 38.0))
sketch18.addConstraint(Sketcher.Constraint("DistanceX", -1, 1, 3, 3, 31.0922))
sketch18.addConstraint(Sketcher.Constraint("DistanceX", 2, 3, -1, 1, 31.087993))
sketch18.addConstraint(Sketcher.Constraint("DistanceY", 2, 3, -1, 1, 12.771112))
pocket17 = body.newObject("PartDesign::Pocket", "Pocket016")
pocket17.Profile = sketch18
pocket17.Length = 6
pocket17.Reversed = True

sketch19 = body.newObject("Sketcher::SketchObject", "Sketch018")
sketch19.AttachmentSupport = (doc.getObject("XZ_Plane"), [""])
sketch19.MapMode = "FlatFace"
sketch19.AttachmentOffset = App.Placement(Vector(0, 0, -8), App.Rotation())
sketch19.addGeometry(Part.Circle(Vector(-36.2, 8.4, 0), Vector(0, 0, 1), 4.5), False)
sketch19.addConstraint(Sketcher.Constraint("Diameter", 0, 9.0))
sketch19.addConstraint(Sketcher.Constraint("DistanceX", 0, 3, -1, 1, 36.2))
sketch19.addConstraint(Sketcher.Constraint("DistanceY", -1, 1, 0, 3, 8.428843))
pocket18 = body.newObject("PartDesign::Pocket", "Pocket017")
pocket18.Profile = sketch19
pocket18.Type = "UpToFirst"
pocket18.Reversed = True

sketch20 = body.newObject("Sketcher::SketchObject", "Sketch019")
sketch20.AttachmentSupport = (doc.getObject("XZ_Plane"), [""])
sketch20.MapMode = "FlatFace"
sketch20.AttachmentOffset = App.Placement(Vector(0, 0, -8), App.Rotation())
sketch20.addGeometry(Part.Circle(Vector(36.2, 8.4, 0), Vector(0, 0, 1), 4.5), False)
sketch20.addConstraint(Sketcher.Constraint("Diameter", 0, 9.0))
sketch20.addConstraint(Sketcher.Constraint("DistanceX", -1, 1, 0, 3, 36.2))
sketch20.addConstraint(Sketcher.Constraint("DistanceY", -1, 1, 0, 3, 8.428843))
pocket19 = body.newObject("PartDesign::Pocket", "Pocket018")
pocket19.Profile = sketch20
pocket19.Type = "UpToFirst"
pocket19.Reversed = True

sketch21 = body.newObject("Sketcher::SketchObject", "Sketch020")
sketch21.AttachmentSupport = (doc.getObject("XZ_Plane"), [""])
sketch21.MapMode = "FlatFace"
sketch21.AttachmentOffset = App.Placement(Vector(0, 0, -8), App.Rotation())
sketch21.addGeometry(Part.Circle(Vector(0, 48.6, 0), Vector(0, 0, 1), 4.5), False)
sketch21.addConstraint(Sketcher.Constraint("PointOnObject", 0, 3, -2))
sketch21.addConstraint(Sketcher.Constraint("Diameter", 0, 9.0))
sketch21.addConstraint(Sketcher.Constraint("DistanceY", -1, 1, 0, 3, 48.566515))
pocket20 = body.newObject("PartDesign::Pocket", "Pocket019")
pocket20.Profile = sketch21
pocket20.Type = "UpToFirst"
pocket20.Reversed = True

sketch22 = body.newObject("Sketcher::SketchObject", "Sketch021")
sketch22.AttachmentSupport = (doc.getObject("XZ_Plane"), [""])
sketch22.MapMode = "FlatFace"
sketch22.AttachmentOffset = App.Placement(Vector(0, 0, -8), App.Rotation())
sketch22.addGeometry(Part.Circle(Vector(0, 27, 0), Vector(0, 0, 1), 8), False)
sketch22.addConstraint(Sketcher.Constraint("PointOnObject", 0, 3, -2))
sketch22.addConstraint(Sketcher.Constraint("Diameter", 0, 15.0))
sketch22.addConstraint(Sketcher.Constraint("DistanceY", -1, 1, 0, 3, 26.826761))
pocket21 = body.newObject("PartDesign::Pocket", "Pocket020")
pocket21.Profile = sketch22
pocket21.Type = "UpToFirst"
pocket21.Reversed = True

sketch23 = body.newObject("Sketcher::SketchObject", "Sketch022")
sketch23.AttachmentSupport = (doc.getObject("XY_Plane"), [""])
sketch23.MapMode = "FlatFace"
sketch23.addGeometry(Part.LineSegment(Vector(73.8, 6.9, 0), Vector(73.8, 8, 0)), False)
sketch23.addGeometry(Part.LineSegment(Vector(73.8, 8, 0), Vector(70.2, 8, 0)), False)
sketch23.addGeometry(Part.LineSegment(Vector(70.2, 8, 0), Vector(70.2, 6.9, 0)), False)
sketch23.addGeometry(Part.LineSegment(Vector(70.2, 6.9, 0), Vector(72, 5.9, 0)), False)
sketch23.addGeometry(Part.LineSegment(Vector(72, 5.9, 0), Vector(73.8, 6.9, 0)), False)
sketch23.addConstraint(Sketcher.Constraint("Coincident", 0, 2, 1, 1))
sketch23.addConstraint(Sketcher.Constraint("Coincident", 1, 2, 2, 1))
sketch23.addConstraint(Sketcher.Constraint("Coincident", 2, 2, 3, 1))
sketch23.addConstraint(Sketcher.Constraint("Coincident", 3, 2, 4, 1))
sketch23.addConstraint(Sketcher.Constraint("Coincident", 4, 2, 0, 1))
sketch23.addConstraint(Sketcher.Constraint("Vertical", 0))
sketch23.addConstraint(Sketcher.Constraint("Horizontal", 1))
sketch23.addConstraint(Sketcher.Constraint("Vertical", 2))
sketch23.addConstraint(Sketcher.Constraint("Horizontal", 2, 2, 4, 2))
sketch23.addConstraint(Sketcher.Constraint("Equal", 3, 4))
sketch23.addConstraint(Sketcher.Constraint("Angle", 3, Q("-30 deg")))
sketch23.addConstraint(Sketcher.Constraint("DistanceX", 1, 2, 1, 1, 3.5))
sketch23.addConstraint(Sketcher.Constraint("DistanceY", -1, 1, 0, 2, 8.0))
sketch23.addConstraint(Sketcher.Constraint("DistanceX", -1, 1, 3, 2, 72.0))
sketch23.addConstraint(Sketcher.Constraint("DistanceY", -1, 1, 3, 2, 5.87))
groove = body.newObject("PartDesign::Groove", "Groove")
groove.Profile = sketch23
groove.ReferenceAxis = (sketch23, ["V_Axis"])
groove.Angle = 360
doc.recompute()

fillet = body.newObject("PartDesign::Fillet", "Fillet")
fillet.Base = (groove, edges_at(groove, [(0, 0, -86)]))
fillet.Radius = 2
doc.recompute()

fillet2 = body.newObject("PartDesign::Fillet", "Fillet001")
fillet2.Base = (fillet, edges_at(fillet, [(0, 8, -86)]))
fillet2.Radius = 0.5

doc.recompute()
